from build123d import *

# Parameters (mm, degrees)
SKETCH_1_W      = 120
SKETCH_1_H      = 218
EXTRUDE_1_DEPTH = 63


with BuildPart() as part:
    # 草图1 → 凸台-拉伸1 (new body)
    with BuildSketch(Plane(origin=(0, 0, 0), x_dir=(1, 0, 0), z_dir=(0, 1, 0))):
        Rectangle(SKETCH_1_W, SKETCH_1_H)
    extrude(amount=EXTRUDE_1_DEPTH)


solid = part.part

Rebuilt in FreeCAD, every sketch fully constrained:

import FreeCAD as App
import Part
import Sketcher

doc = App.newDocument("Part")
body = doc.addObject("PartDesign::Body", "Body")

sketch1 = body.newObject("Sketcher::SketchObject", "Sketch")
sketch1.AttachmentSupport = (doc.getObject("XZ_Plane"), [""])
sketch1.MapMode = "FlatFace"
sketch1.addGeometry([
    Part.LineSegment(App.Vector(-60, -109, 0), App.Vector(-60, 109, 0)),
    Part.LineSegment(App.Vector(-60, 109, 0), App.Vector(60, 109, 0)),
    Part.LineSegment(App.Vector(60, 109, 0), App.Vector(60, -109, 0)),
    Part.LineSegment(App.Vector(60, -109, 0), App.Vector(-60, -109, 0)),
], False)
sketch1.addConstraint([
    Sketcher.Constraint("Coincident", 0, 2, 1, 1),
    Sketcher.Constraint("Coincident", 1, 2, 2, 1),
    Sketcher.Constraint("Coincident", 2, 2, 3, 1),
    Sketcher.Constraint("Coincident", 3, 2, 0, 1),
    Sketcher.Constraint("Vertical", 0),
    Sketcher.Constraint("Horizontal", 1),
    Sketcher.Constraint("Vertical", 2),
    Sketcher.Constraint("Horizontal", 3),
    Sketcher.Constraint("Symmetric", 0, 2, 2, 2, -1, 1),
    Sketcher.Constraint("DistanceX", 1, 1, 1, 2, 120.0),
    Sketcher.Constraint("DistanceY", 0, 1, 0, 2, 218.0),
])
pad1 = body.newObject("PartDesign::Pad", "Pad")
pad1.Profile = sketch1
pad1.Length = 63
pad1.Reversed = True

doc.recompute()
